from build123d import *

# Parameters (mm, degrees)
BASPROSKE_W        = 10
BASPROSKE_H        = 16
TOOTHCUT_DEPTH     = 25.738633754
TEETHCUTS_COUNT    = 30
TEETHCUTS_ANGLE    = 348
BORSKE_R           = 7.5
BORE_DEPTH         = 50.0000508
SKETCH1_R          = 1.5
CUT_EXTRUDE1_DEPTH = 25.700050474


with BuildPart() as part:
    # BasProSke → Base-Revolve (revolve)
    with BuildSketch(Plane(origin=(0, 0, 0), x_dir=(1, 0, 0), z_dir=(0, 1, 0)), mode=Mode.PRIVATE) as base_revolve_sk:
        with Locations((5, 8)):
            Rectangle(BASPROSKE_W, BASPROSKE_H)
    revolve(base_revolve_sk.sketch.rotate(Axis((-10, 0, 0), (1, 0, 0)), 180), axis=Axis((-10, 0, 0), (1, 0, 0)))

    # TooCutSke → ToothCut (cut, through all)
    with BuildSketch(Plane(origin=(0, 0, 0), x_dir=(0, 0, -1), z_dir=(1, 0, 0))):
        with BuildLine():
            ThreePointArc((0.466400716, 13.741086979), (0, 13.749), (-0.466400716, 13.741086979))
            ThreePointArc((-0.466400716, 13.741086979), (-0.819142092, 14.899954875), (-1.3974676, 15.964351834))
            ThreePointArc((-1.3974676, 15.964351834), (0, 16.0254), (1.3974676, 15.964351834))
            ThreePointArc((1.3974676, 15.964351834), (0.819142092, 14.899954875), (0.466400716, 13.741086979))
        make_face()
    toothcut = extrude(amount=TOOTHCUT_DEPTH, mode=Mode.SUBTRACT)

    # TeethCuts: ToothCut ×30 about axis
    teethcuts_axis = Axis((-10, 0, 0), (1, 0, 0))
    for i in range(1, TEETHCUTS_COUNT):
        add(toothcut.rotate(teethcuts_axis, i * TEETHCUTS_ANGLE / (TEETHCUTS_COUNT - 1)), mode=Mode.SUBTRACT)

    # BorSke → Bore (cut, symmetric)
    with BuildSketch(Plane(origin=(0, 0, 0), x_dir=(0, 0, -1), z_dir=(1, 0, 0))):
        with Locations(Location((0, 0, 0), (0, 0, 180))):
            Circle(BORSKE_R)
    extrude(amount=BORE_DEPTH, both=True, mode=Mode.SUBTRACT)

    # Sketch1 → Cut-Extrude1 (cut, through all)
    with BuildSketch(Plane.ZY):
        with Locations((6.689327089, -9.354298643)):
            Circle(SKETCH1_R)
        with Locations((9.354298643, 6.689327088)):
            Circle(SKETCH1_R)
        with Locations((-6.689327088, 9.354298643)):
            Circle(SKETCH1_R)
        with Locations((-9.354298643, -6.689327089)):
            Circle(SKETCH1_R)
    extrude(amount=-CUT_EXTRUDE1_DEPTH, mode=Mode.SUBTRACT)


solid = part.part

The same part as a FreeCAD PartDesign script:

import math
import FreeCAD as App
import Part
import Sketcher

V = App.Vector
Q = App.Units.Quantity


def add_polygon(sketch, points):
    """Adds a closed chain of lines whose ends are joined by coincident constraints."""
    first, n = sketch.GeometryCount, len(points)
    for a, b in zip(points, points[1:] + points[:1]):
        sketch.addGeometry(Part.LineSegment(App.Vector(*a, 0), App.Vector(*b, 0)), False)
    for i in range(n):
        sketch.addConstraint(Sketcher.Constraint("Coincident", first + i, 2, first + (i + 1) % n, 1))

doc = App.newDocument("Part")
params = doc.addObject("Spreadsheet::Sheet", "Params")
for row, (alias, value) in enumerate([
    ("sketch1_width", "10 mm"),
    ("sketch1_height", "16 mm"),
    ("revolution_angle", "360 deg"),
    ("sketch2_radius", "6 mm"),
    ("sketch3_diameter", "15 mm"),
    ("pocket2_length", "100.000102 mm"),
    ("sketch4_diameter", "3 mm"),
], start=1):
    params.set(f"A{row}", alias)
    params.set(f"B{row}", "=" + value)
    params.setAlias(f"B{row}", alias)

body = doc.addObject("PartDesign::Body", "Body")

# Sketch on XZ plane
sketch1 = doc.addObject("Sketcher::SketchObject", "Sketch")
body.addObject(sketch1)
sketch1.AttachmentSupport = (doc.XZ_Plane, [""])
sketch1.MapMode = "FlatFace"
add_polygon(sketch1, [(0, -16), (0, 0), (10, 0), (10, -16)])  # lines 0-3
sketch1.addConstraint(Sketcher.Constraint("Vertical", 0))
sketch1.addConstraint(Sketcher.Constraint("Horizontal", 1))
sketch1.addConstraint(Sketcher.Constraint("Vertical", 2))
sketch1.addConstraint(Sketcher.Constraint("Horizontal", 3))
sketch1.addConstraint(Sketcher.Constraint("Coincident", 0, 2, -1, 1))
sketch1.addConstraint(Sketcher.Constraint("DistanceX", 1, 1, 1, 2, Q("10 mm")))
sketch1.addConstraint(Sketcher.Constraint("DistanceY", 0, 1, 0, 2, Q("16 mm")))
sketch1.setExpression("Constraints[9]", "Params.sketch1_width")
sketch1.setExpression("Constraints[10]", "Params.sketch1_height")
revolution = doc.addObject("PartDesign::Revolution", "Revolution")
body.addObject(revolution)
revolution.Profile = sketch1
revolution.ReferenceAxis = (sketch1, ["H_Axis"])
revolution.setExpression("Angle", "Params.revolution_angle")

# Sketch on YZ plane
sketch2 = doc.addObject("Sketcher::SketchObject", "Sketch001")
body.addObject(sketch2)
sketch2.AttachmentSupport = (doc.YZ_Plane, [""])
sketch2.MapMode = "FlatFace"
sketch2.addGeometry(Part.ArcOfCircle(Part.Circle(V(0, 0, 0), V(0, 0, 1), 13.7), math.radians(-1.94), math.radians(1.94)), False)
sketch2.addGeometry(Part.ArcOfCircle(Part.Circle(V(12.6, -6.4, 0), V(0, 0, 1), 6), math.radians(56), math.radians(79)), False)
sketch2.addGeometry(Part.ArcOfCircle(Part.Circle(V(0, 0, 0), V(0, 0, 1), 16), math.radians(-5), math.radians(5)), False)
sketch2.addGeometry(Part.ArcOfCircle(Part.Circle(V(12.6, 6.4, 0), V(0, 0, 1), 6), math.radians(-79), math.radians(-56)), False)
sketch2.addConstraint(Sketcher.Constraint("Coincident", 0, 1, 1, 2))
sketch2.addConstraint(Sketcher.Constraint("Coincident", 1, 1, 2, 1))
sketch2.addConstraint(Sketcher.Constraint("Coincident", 2, 2, 3, 2))
sketch2.addConstraint(Sketcher.Constraint("Coincident", 3, 1, 0, 2))
sketch2.addConstraint(Sketcher.Constraint("Coincident", 0, 3, -1, 1))
sketch2.addConstraint(Sketcher.Constraint("Coincident", 2, 3, -1, 1))
sketch2.addConstraint(Sketcher.Constraint("Equal", 1, 3))
sketch2.addConstraint(Sketcher.Constraint("Symmetric", 1, 3, 3, 3, -1))
sketch2.addConstraint(Sketcher.Constraint("Radius", 1, Q("6 mm")))
sketch2.addConstraint(Sketcher.Constraint("Radius", 0, Q("13.749 mm")))
sketch2.addConstraint(Sketcher.Constraint("Radius", 2, Q("16.0254 mm")))
sketch2.addConstraint(Sketcher.Constraint("DistanceY", 0, 1, -1, 1, Q("0.466401 mm")))
sketch2.addConstraint(Sketcher.Constraint("DistanceX", -1, 1, 1, 1, Q("15.964352 mm")))
sketch2.setExpression("Constraints[8]", "Params.sketch2_radius")
pocket1 = doc.addObject("PartDesign::Pocket", "Pocket")
body.addObject(pocket1)
pocket1.Profile = sketch2
pocket1.Type = "ThroughAll"
pocket1.Reversed = True
doc.recompute()

polarpattern = doc.addObject("PartDesign::PolarPattern", "PolarPattern")
body.addObject(polarpattern)
polarpattern.Originals = [pocket1]
polarpattern.Axis = (doc.X_Axis, [""])
polarpattern.Angle = 360
polarpattern.Occurrences = 30
body.Tip = polarpattern

# Sketch on YZ plane
sketch3 = doc.addObject("Sketcher::SketchObject", "Sketch002")
body.addObject(sketch3)
sketch3.AttachmentSupport = (doc.YZ_Plane, [""])
sketch3.MapMode = "FlatFace"
sketch3.addGeometry(Part.Circle(V(0, 0, 0), V(0, 0, 1), 8), False)
sketch3.addConstraint(Sketcher.Constraint("Coincident", 0, 3, -1, 1))
sketch3.addConstraint(Sketcher.Constraint("Diameter", 0, Q("15 mm")))
sketch3.setExpression("Constraints[1]", "Params.sketch3_diameter")
pocket2 = doc.addObject("PartDesign::Pocket", "Pocket001")
body.addObject(pocket2)
pocket2.Profile = sketch3
pocket2.setExpression("Length", "Params.pocket2_length")
pocket2.Midplane = True

# Sketch on YZ plane
sketch4 = doc.addObject("Sketcher::SketchObject", "Sketch003")
body.addObject(sketch4)
sketch4.AttachmentSupport = (doc.YZ_Plane, [""])
sketch4.MapMode = "FlatFace"
sketch4.addGeometry(Part.Circle(V(-9.4, 6.7, 0), V(0, 0, 1), 1.5), False)
sketch4.addGeometry(Part.Circle(V(6.7, 9.4, 0), V(0, 0, 1), 1.5), False)
sketch4.addGeometry(Part.Circle(V(9.4, -6.7, 0), V(0, 0, 1), 1.5), False)
sketch4.addGeometry(Part.Circle(V(-6.7, -9.4, 0), V(0, 0, 1), 1.5), False)
sketch4.addConstraint(Sketcher.Constraint("Equal", 0, 1))
sketch4.addConstraint(Sketcher.Constraint("Equal", 1, 2))
sketch4.addConstraint(Sketcher.Constraint("Equal", 2, 3))
sketch4.addConstraint(Sketcher.Constraint("Symmetric", 0, 3, 2, 3, -1, 1))
sketch4.addConstraint(Sketcher.Constraint("Symmetric", 1, 3, 3, 3, -1, 1))
sketch4.addConstraint(Sketcher.Constraint("Diameter", 0, Q("3 mm")))
sketch4.addConstraint(Sketcher.Constraint("DistanceX", 0, 3, -1, 1, Q("9.354299 mm")))
sketch4.addConstraint(Sketcher.Constraint("DistanceY", -1, 1, 1, 3, Q("9.354299 mm")))
sketch4.addConstraint(Sketcher.Constraint("DistanceY", 0, 3, 1, 3, Q("2.664972 mm")))
sketch4.addConstraint(Sketcher.Constraint("DistanceX", 1, 3, 2, 3, Q("2.664972 mm")))
sketch4.setExpression("Constraints[5]", "Params.sketch4_diameter")
pocket3 = doc.addObject("PartDesign::Pocket", "Pocket002")
body.addObject(pocket3)
pocket3.Profile = sketch4
pocket3.Type = "ThroughAll"
pocket3.Reversed = True

doc.recompute()
